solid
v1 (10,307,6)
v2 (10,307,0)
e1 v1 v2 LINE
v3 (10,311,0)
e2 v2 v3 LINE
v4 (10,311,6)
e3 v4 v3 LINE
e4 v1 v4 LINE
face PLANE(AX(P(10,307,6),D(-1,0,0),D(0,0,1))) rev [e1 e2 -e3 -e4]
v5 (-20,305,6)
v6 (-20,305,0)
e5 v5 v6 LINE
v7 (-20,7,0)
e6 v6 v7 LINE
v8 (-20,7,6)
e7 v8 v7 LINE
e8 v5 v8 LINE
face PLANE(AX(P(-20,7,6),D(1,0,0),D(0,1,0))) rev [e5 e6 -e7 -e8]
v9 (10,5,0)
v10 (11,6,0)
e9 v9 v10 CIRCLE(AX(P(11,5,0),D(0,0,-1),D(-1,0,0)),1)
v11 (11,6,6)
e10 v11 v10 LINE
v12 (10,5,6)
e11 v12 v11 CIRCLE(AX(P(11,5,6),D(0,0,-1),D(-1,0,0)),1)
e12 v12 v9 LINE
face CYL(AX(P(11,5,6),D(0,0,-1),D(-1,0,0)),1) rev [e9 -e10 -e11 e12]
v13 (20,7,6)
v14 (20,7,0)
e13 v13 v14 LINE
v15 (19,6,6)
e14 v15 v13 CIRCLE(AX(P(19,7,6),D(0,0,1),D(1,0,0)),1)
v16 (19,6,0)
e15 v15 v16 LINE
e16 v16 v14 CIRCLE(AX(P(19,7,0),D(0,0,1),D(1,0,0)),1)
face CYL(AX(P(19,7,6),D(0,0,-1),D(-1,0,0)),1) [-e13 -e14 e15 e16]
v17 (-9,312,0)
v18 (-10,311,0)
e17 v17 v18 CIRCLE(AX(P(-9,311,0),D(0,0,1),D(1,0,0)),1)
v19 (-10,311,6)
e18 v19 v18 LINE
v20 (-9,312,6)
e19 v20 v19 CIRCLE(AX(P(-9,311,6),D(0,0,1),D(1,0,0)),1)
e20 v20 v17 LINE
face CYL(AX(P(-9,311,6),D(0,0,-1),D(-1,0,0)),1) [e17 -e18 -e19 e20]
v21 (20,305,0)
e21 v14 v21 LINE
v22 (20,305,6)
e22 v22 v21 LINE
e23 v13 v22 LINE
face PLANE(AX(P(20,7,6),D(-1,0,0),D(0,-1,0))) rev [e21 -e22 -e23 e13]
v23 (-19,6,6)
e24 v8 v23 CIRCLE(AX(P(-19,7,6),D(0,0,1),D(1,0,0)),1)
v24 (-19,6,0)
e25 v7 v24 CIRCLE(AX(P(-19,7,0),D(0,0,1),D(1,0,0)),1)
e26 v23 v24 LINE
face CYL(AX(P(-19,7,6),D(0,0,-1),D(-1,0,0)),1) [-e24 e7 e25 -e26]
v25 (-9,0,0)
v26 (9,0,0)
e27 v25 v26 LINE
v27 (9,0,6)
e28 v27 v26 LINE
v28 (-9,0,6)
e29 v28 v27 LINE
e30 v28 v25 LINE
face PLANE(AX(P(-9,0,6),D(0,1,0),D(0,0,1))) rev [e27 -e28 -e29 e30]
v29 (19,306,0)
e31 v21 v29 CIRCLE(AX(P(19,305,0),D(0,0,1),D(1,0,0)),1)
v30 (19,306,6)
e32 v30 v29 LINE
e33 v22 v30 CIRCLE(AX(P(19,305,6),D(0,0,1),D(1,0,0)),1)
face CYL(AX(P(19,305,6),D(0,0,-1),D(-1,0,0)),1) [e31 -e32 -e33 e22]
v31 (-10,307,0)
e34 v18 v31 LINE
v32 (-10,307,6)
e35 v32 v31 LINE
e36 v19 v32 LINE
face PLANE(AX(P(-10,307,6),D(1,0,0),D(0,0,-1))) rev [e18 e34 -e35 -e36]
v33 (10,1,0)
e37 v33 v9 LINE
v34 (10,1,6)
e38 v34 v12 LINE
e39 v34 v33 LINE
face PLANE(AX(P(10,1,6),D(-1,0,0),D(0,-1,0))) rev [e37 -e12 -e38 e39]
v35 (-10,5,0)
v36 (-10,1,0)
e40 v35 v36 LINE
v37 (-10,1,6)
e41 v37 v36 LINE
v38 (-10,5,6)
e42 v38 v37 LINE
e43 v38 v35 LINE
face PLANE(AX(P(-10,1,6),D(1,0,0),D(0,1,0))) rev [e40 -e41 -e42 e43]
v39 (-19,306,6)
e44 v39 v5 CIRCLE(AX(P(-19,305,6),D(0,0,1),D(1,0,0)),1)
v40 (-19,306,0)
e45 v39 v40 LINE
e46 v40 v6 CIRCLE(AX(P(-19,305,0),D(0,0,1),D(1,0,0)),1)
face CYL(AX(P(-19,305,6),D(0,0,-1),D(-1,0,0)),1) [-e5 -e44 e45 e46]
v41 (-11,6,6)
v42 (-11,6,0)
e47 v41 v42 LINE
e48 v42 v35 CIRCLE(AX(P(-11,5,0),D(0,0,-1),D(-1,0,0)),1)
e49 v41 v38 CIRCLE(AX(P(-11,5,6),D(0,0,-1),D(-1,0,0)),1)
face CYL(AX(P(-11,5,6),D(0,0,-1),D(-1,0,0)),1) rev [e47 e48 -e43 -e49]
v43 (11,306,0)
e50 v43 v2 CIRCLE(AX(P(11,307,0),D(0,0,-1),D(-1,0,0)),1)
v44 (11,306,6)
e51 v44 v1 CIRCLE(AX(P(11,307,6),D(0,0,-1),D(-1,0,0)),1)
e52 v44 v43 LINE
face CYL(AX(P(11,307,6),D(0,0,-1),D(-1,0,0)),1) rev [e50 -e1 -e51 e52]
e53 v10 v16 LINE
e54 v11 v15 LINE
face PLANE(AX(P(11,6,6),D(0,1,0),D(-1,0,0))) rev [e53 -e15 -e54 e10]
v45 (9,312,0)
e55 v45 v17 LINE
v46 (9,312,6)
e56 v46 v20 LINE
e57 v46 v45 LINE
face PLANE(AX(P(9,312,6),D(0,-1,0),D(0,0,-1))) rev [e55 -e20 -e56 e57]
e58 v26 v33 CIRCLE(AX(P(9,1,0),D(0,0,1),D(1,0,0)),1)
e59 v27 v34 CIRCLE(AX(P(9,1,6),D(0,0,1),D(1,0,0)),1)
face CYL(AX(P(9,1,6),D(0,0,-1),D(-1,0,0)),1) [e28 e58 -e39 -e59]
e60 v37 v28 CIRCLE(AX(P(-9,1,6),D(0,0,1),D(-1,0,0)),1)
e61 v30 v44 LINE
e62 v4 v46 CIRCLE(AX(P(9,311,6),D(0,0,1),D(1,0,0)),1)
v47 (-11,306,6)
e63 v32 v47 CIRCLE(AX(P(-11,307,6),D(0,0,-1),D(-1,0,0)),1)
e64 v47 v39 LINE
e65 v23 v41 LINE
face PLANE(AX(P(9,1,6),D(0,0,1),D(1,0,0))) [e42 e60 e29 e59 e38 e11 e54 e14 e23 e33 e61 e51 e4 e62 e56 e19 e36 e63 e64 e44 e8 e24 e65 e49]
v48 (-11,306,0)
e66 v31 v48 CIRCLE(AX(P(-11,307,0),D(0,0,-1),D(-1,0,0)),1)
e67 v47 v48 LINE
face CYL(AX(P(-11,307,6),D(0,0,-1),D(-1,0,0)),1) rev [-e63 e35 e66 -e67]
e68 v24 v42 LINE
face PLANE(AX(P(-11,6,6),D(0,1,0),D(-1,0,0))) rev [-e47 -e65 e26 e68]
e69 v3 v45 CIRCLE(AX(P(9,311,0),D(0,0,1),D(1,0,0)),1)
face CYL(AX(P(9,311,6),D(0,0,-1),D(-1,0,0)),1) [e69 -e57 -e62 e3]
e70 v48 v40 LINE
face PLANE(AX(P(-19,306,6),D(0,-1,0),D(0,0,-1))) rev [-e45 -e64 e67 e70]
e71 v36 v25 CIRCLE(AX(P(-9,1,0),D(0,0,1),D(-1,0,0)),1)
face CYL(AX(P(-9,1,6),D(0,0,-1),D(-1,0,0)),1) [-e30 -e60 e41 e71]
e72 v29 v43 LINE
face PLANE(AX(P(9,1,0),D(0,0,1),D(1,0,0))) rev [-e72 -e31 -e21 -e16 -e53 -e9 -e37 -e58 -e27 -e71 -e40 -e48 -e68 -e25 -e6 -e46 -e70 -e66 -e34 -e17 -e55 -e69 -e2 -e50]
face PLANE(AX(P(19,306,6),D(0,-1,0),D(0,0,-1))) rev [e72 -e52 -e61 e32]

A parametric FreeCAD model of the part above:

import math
import FreeCAD as App
import Part
import Sketcher
from FreeCAD import Vector

doc = App.newDocument("Part")
body = doc.addObject("PartDesign::Body", "Body")

sketch1 = body.newObject("Sketcher::SketchObject", "Sketch")
sketch1.AttachmentSupport = (doc.getObject("XY_Plane"), [""])
sketch1.MapMode = "FlatFace"
sketch1.addGeometry(Part.LineSegment(Vector(-9, 0, 0), Vector(9, 0, 0)), False)
sketch1.addGeometry(Part.ArcOfCircle(Part.Circle(Vector(9, 1, 0), Vector(0, 0, 1), 1), math.radians(-90), math.radians(0)), False)
sketch1.addGeometry(Part.LineSegment(Vector(10, 1, 0), Vector(10, 5, 0)), False)
sketch1.addGeometry(Part.ArcOfCircle(Part.Circle(Vector(11, 5, 0), Vector(0, 0, 1), 1), math.radians(90), math.radians(180)), False)
sketch1.addGeometry(Part.LineSegment(Vector(11, 6, 0), Vector(19, 6, 0)), False)
sketch1.addGeometry(Part.ArcOfCircle(Part.Circle(Vector(19, 7, 0), Vector(0, 0, 1), 1), math.radians(-90), math.radians(0)), False)
sketch1.addGeometry(Part.LineSegment(Vector(20, 7, 0), Vector(20, 305, 0)), False)
sketch1.addGeometry(Part.ArcOfCircle(Part.Circle(Vector(19, 305, 0), Vector(0, 0, 1), 1), math.radians(0), math.radians(90)), False)
sketch1.addGeometry(Part.LineSegment(Vector(19, 306, 0), Vector(11, 306, 0)), False)
sketch1.addGeometry(Part.ArcOfCircle(Part.Circle(Vector(11, 307, 0), Vector(0, 0, 1), 1), math.radians(-180), math.radians(-90)), False)
sketch1.addGeometry(Part.LineSegment(Vector(10, 307, 0), Vector(10, 311, 0)), False)
sketch1.addGeometry(Part.ArcOfCircle(Part.Circle(Vector(9, 311, 0), Vector(0, 0, 1), 1), math.radians(0), math.radians(90)), False)
sketch1.addGeometry(Part.LineSegment(Vector(9, 312, 0), Vector(-9, 312, 0)), False)
sketch1.addGeometry(Part.ArcOfCircle(Part.Circle(Vector(-9, 311, 0), Vector(0, 0, 1), 1), math.radians(90), math.radians(180)), False)
sketch1.addGeometry(Part.LineSegment(Vector(-10, 311, 0), Vector(-10, 307, 0)), False)
sketch1.addGeometry(Part.ArcOfCircle(Part.Circle(Vector(-11, 307, 0), Vector(0, 0, 1), 1), math.radians(-90), math.radians(0)), False)
sketch1.addGeometry(Part.LineSegment(Vector(-11, 306, 0), Vector(-19, 306, 0)), False)
sketch1.addGeometry(Part.ArcOfCircle(Part.Circle(Vector(-19, 305, 0), Vector(0, 0, 1), 1), math.radians(90), math.radians(180)), False)
sketch1.addGeometry(Part.LineSegment(Vector(-20, 305, 0), Vector(-20, 7, 0)), False)
sketch1.addGeometry(Part.ArcOfCircle(Part.Circle(Vector(-19, 7, 0), Vector(0, 0, 1), 1), math.radians(-180), math.radians(-90)), False)
sketch1.addGeometry(Part.LineSegment(Vector(-19, 6, 0), Vector(-11, 6, 0)), False)
sketch1.addGeometry(Part.ArcOfCircle(Part.Circle(Vector(-11, 5, 0), Vector(0, 0, 1), 1), math.radians(0), math.radians(90)), False)
sketch1.addGeometry(Part.LineSegment(Vector(-10, 5, 0), Vector(-10, 1, 0)), False)
sketch1.addGeometry(Part.ArcOfCircle(Part.Circle(Vector(-9, 1, 0), Vector(0, 0, 1), 1), math.radians(-180), math.radians(-90)), False)
sketch1.addConstraint(Sketcher.Constraint("Tangent", 0, 2, 1, 1))
sketch1.addConstraint(Sketcher.Constraint("Tangent", 1, 2, 2, 1))
sketch1.addConstraint(Sketcher.Constraint("Tangent", 2, 2, 3, 2))
sketch1.addConstraint(Sketcher.Constraint("Tangent", 3, 1, 4, 1))
sketch1.addConstraint(Sketcher.Constraint("Tangent", 4, 2, 5, 1))
sketch1.addConstraint(Sketcher.Constraint("Tangent", 5, 2, 6, 1))
sketch1.addConstraint(Sketcher.Constraint("Tangent", 6, 2, 7, 1))
sketch1.addConstraint(Sketcher.Constraint("Tangent", 7, 2, 8, 1))
sketch1.addConstraint(Sketcher.Constraint("Tangent", 8, 2, 9, 2))
sketch1.addConstraint(Sketcher.Constraint("Tangent", 9, 1, 10, 1))
sketch1.addConstraint(Sketcher.Constraint("Tangent", 10, 2, 11, 1))
sketch1.addConstraint(Sketcher.Constraint("Tangent", 11, 2, 12, 1))
sketch1.addConstraint(Sketcher.Constraint("Tangent", 12, 2, 13, 1))
sketch1.addConstraint(Sketcher.Constraint("Tangent", 13, 2, 14, 1))
sketch1.addConstraint(Sketcher.Constraint("Tangent", 14, 2, 15, 2))
sketch1.addConstraint(Sketcher.Constraint("Tangent", 15, 1, 16, 1))
sketch1.addConstraint(Sketcher.Constraint("Tangent", 16, 2, 17, 1))
sketch1.addConstraint(Sketcher.Constraint("Tangent", 17, 2, 18, 1))
sketch1.addConstraint(Sketcher.Constraint("Tangent", 18, 2, 19, 1))
sketch1.addConstraint(Sketcher.Constraint("Tangent", 19, 2, 20, 1))
sketch1.addConstraint(Sketcher.Constraint("Tangent", 20, 2, 21, 2))
sketch1.addConstraint(Sketcher.Constraint("Tangent", 21, 1, 22, 1))
sketch1.addConstraint(Sketcher.Constraint("Tangent", 22, 2, 23, 1))
sketch1.addConstraint(Sketcher.Constraint("Tangent", 23, 2, 0, 1))
sketch1.addConstraint(Sketcher.Constraint("Horizontal", 0))
sketch1.addConstraint(Sketcher.Constraint("Vertical", 2))
sketch1.addConstraint(Sketcher.Constraint("Horizontal", 4))
sketch1.addConstraint(Sketcher.Constraint("Vertical", 6))
sketch1.addConstraint(Sketcher.Constraint("Horizontal", 8))
sketch1.addConstraint(Sketcher.Constraint("Vertical", 10))
sketch1.addConstraint(Sketcher.Constraint("Horizontal", 12))
sketch1.addConstraint(Sketcher.Constraint("Vertical", 14))
sketch1.addConstraint(Sketcher.Constraint("Horizontal", 16))
sketch1.addConstraint(Sketcher.Constraint("Vertical", 18))
sketch1.addConstraint(Sketcher.Constraint("Horizontal", 20))
sketch1.addConstraint(Sketcher.Constraint("Vertical", 22))
sketch1.addConstraint(Sketcher.Constraint("Equal", 1, 3))
sketch1.addConstraint(Sketcher.Constraint("Equal", 3, 5))
sketch1.addConstraint(Sketcher.Constraint("Equal", 5, 7))
sketch1.addConstraint(Sketcher.Constraint("Equal", 7, 9))
sketch1.addConstraint(Sketcher.Constraint("Equal", 9, 11))
sketch1.addConstraint(Sketcher.Constraint("Equal", 11, 13))
sketch1.addConstraint(Sketcher.Constraint("Equal", 13, 15))
sketch1.addConstraint(Sketcher.Constraint("Equal", 15, 17))
sketch1.addConstraint(Sketcher.Constraint("Equal", 17, 19))
sketch1.addConstraint(Sketcher.Constraint("Equal", 19, 21))
sketch1.addConstraint(Sketcher.Constraint("Equal", 21, 23))
sketch1.addConstraint(Sketcher.Constraint("Symmetric", 0, 2, 23, 2, -1, 1))
sketch1.addConstraint(Sketcher.Constraint("Symmetric", 9, 3, 15, 3, -2))
sketch1.addConstraint(Sketcher.Constraint("Symmetric", 5, 3, 19, 3, -2))
sketch1.addConstraint(Sketcher.Constraint("Vertical", 3, 3, 9, 3))
sketch1.addConstraint(Sketcher.Constraint("Equal", 2, 10))
sketch1.addConstraint(Sketcher.Constraint("Radius", 1, 1.0))
sketch1.addConstraint(Sketcher.Constraint("DistanceX", 0, 1, 0, 2, 18.0))
sketch1.addConstraint(Sketcher.Constraint("DistanceX", 4, 1, 4, 2, 8.0))
sketch1.addConstraint(Sketcher.Constraint("DistanceY", 2, 1, 2, 2, 4.0))
sketch1.addConstraint(Sketcher.Constraint("DistanceY", 6, 1, 6, 2, 298.0))
pad1 = body.newObject("PartDesign::Pad", "Pad")
pad1.Profile = sketch1
pad1.Length = 6

doc.recompute()
